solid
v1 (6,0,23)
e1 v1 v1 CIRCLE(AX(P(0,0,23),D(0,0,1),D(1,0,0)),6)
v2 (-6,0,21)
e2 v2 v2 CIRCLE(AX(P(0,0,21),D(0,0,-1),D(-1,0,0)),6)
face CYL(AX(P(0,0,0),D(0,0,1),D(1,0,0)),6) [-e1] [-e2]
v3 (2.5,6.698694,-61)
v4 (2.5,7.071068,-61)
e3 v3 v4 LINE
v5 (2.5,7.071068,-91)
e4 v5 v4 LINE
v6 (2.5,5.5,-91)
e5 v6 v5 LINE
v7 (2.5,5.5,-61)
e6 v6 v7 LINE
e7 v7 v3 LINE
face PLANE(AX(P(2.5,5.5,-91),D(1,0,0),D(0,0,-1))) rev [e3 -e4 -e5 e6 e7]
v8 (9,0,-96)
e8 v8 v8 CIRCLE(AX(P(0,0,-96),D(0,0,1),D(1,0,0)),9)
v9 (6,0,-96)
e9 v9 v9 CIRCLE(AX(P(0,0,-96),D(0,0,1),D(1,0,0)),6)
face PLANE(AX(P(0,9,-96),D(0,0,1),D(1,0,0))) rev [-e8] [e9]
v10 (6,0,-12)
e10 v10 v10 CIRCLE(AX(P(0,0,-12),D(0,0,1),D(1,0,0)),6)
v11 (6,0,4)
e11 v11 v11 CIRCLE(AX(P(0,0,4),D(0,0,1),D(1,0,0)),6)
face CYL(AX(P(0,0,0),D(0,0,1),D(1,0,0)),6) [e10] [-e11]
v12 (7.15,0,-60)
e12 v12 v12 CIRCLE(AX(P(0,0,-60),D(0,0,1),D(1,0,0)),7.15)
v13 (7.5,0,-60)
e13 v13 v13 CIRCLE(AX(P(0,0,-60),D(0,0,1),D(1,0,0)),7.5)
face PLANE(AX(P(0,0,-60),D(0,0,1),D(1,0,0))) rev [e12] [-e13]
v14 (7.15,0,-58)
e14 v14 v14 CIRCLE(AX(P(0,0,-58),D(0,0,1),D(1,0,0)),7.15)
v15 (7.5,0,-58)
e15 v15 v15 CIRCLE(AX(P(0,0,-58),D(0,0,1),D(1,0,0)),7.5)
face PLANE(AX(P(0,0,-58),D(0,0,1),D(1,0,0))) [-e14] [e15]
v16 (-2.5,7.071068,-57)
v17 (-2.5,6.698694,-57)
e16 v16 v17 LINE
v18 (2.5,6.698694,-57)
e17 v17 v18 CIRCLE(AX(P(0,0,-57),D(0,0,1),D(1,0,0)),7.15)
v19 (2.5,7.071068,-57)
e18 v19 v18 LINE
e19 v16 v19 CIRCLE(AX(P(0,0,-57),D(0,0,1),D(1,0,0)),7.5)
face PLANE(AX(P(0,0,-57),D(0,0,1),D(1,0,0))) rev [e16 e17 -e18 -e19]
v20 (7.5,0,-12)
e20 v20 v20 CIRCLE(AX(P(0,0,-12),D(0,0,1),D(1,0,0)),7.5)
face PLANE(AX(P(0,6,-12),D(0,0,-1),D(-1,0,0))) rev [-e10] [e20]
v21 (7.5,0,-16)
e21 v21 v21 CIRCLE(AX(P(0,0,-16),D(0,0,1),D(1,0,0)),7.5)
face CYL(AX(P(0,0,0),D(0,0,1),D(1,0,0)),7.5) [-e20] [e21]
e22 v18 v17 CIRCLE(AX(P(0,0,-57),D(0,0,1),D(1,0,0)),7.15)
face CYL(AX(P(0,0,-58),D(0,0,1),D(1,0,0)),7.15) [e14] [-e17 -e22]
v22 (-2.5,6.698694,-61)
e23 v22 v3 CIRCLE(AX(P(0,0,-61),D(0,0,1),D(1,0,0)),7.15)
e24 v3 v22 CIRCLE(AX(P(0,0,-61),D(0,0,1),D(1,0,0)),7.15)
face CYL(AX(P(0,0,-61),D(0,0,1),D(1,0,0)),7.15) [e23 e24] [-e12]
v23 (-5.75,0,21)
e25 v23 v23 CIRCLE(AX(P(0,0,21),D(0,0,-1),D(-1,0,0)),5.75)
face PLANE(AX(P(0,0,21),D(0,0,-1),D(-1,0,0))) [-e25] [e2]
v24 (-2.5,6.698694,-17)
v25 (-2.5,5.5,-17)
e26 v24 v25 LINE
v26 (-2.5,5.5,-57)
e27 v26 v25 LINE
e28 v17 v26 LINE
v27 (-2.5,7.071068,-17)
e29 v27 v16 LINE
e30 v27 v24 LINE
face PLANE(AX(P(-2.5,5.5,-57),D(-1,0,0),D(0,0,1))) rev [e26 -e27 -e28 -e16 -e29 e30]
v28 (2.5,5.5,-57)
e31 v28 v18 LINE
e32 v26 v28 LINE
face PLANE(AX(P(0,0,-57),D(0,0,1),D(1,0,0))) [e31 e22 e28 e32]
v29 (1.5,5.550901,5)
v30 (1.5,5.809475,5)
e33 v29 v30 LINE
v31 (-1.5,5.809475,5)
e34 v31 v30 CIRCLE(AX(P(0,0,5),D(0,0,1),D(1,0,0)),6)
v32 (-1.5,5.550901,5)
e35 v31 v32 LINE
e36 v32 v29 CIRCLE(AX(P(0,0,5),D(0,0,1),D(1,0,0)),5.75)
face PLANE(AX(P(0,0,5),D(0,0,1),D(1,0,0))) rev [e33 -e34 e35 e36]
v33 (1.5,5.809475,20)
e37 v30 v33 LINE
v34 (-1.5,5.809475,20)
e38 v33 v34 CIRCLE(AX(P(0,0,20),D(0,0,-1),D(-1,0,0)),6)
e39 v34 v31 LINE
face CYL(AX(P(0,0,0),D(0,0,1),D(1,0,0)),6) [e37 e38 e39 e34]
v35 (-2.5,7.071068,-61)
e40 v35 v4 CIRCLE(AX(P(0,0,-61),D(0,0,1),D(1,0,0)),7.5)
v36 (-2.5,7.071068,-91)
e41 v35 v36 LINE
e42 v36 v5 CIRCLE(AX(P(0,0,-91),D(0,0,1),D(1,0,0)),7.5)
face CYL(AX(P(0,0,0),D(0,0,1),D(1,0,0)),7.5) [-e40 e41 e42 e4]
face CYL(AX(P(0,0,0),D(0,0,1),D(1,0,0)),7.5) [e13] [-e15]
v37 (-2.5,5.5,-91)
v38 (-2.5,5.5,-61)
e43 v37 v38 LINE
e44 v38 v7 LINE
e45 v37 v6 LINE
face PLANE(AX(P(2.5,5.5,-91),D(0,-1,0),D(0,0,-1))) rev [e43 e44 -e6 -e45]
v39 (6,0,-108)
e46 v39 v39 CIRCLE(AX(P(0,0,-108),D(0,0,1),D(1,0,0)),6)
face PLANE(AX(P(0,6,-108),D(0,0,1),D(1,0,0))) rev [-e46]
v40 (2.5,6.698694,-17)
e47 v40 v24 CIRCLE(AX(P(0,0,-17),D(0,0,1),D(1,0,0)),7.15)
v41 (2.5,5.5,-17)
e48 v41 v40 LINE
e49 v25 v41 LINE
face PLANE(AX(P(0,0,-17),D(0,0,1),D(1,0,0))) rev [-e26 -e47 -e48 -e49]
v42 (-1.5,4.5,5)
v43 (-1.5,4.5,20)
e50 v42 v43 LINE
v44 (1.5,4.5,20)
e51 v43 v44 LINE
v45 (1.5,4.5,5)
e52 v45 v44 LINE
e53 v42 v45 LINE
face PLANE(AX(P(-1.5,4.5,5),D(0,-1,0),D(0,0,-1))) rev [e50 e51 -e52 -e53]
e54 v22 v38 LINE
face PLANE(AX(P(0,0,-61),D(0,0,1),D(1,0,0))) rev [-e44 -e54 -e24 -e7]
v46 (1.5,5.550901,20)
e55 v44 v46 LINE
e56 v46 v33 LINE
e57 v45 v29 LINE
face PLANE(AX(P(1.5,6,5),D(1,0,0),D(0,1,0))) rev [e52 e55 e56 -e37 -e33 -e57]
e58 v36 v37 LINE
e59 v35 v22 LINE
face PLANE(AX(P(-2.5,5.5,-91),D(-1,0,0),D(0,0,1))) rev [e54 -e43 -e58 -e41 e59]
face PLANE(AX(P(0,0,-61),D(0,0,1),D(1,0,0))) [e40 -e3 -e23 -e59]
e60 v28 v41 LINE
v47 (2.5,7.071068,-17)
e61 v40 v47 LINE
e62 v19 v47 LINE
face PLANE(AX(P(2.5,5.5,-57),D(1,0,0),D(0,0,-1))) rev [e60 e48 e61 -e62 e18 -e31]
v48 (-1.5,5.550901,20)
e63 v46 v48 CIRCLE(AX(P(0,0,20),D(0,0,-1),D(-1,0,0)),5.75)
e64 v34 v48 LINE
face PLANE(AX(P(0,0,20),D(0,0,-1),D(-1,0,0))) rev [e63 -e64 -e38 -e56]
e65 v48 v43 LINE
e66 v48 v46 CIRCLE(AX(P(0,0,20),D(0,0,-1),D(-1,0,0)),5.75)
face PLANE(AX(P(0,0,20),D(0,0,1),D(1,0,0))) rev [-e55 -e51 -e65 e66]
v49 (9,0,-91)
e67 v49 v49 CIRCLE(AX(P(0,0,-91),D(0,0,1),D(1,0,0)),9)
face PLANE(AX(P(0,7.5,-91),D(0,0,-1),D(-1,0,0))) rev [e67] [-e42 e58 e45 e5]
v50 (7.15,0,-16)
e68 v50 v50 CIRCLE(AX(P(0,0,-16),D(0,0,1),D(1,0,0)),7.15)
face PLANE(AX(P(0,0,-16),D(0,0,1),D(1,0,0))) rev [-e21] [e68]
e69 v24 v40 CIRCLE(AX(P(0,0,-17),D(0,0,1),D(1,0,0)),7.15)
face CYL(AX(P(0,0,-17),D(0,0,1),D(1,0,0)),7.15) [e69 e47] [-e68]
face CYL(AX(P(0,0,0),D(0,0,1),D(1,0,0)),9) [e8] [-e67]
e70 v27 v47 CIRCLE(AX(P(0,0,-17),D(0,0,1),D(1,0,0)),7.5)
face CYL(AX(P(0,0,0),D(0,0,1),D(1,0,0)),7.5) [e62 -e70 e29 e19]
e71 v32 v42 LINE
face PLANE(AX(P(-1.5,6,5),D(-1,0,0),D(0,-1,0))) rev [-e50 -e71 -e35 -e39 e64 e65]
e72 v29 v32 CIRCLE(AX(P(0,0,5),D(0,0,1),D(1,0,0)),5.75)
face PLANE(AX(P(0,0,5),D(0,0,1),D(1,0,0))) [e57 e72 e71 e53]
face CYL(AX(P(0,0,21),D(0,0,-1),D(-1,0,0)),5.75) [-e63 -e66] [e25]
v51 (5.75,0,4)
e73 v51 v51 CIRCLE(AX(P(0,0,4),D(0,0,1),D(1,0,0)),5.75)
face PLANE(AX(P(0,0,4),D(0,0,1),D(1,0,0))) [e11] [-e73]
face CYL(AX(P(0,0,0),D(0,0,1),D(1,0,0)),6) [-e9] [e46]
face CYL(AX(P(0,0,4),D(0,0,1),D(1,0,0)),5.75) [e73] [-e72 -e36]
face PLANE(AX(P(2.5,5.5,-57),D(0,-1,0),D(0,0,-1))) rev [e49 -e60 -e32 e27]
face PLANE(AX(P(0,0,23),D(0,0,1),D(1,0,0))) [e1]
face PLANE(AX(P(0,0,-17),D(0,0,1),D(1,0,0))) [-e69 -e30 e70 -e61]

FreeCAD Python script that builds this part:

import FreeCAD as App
import Part
import Sketcher
from FreeCAD import Vector

doc = App.newDocument("Part")
params = doc.addObject("Spreadsheet::Sheet", "Params")
for row, (alias, value) in enumerate([
    ("sketch1_width", "6 mm"),
    ("sketch1_width2", "3 mm"),
    ("sketch1_height", "108 mm"),
    ("sketch1_height2", "12 mm"),
    ("sketch1_height3", "5 mm"),
    ("revolution_angle", "360 deg"),
    ("sketch2_diameter", "20.3 mm"),
    ("sketch2_diameter2", "14.3 mm"),
    ("pocket1_length", "1 mm"),
    ("sketch3_width", "5 mm"),
    ("sketch3_height", "3 mm"),
    ("pocket2_length", "40 mm"),
    ("sketch4_diameter", "20.3 mm"),
    ("sketch4_diameter2", "14.3 mm"),
    ("pocket3_length", "1 mm"),
    ("sketch5_diameter", "20.3 mm"),
    ("sketch5_diameter2", "14.3 mm"),
    ("pocket4_length", "1 mm"),
    ("sketch6_width", "5 mm"),
    ("sketch6_height", "3 mm"),
    ("pocket5_length", "30 mm"),
    ("sketch7_diameter", "12 mm"),
    ("pad1_length", "20 mm"),
    ("sketch8_width", "3 mm"),
    ("sketch8_height", "1.5 mm"),
    ("pocket6_length", "15 mm"),
    ("sketch9_diameter", "12 mm"),
    ("pad2_length", "3 mm"),
    ("sketch10_diameter", "13 mm"),
    ("sketch10_diameter2", "11.5 mm"),
    ("pocket7_length", "1 mm"),
    ("sketch11_diameter", "13 mm"),
    ("sketch11_diameter2", "11.5 mm"),
    ("pocket8_length", "1 mm"),
], start=1):
    params.set(f"A{row}", alias)
    params.set(f"B{row}", "=" + value)
    params.setAlias(f"B{row}", alias)

body = doc.addObject("PartDesign::Body", "Body")

sketch1 = body.newObject("Sketcher::SketchObject", "Sketch")
sketch1.AttachmentSupport = (doc.getObject("YZ_Plane"), [""])
sketch1.MapMode = "FlatFace"
sketch1.addGeometry(Part.LineSegment(Vector(6, 0, 0), Vector(0, 0, 0)), False)
sketch1.addGeometry(Part.LineSegment(Vector(0, 0, 0), Vector(0, -108, 0)), False)
sketch1.addGeometry(Part.LineSegment(Vector(0, -108, 0), Vector(6, -108, 0)), False)
sketch1.addGeometry(Part.LineSegment(Vector(6, -108, 0), Vector(6, -96, 0)), False)
sketch1.addGeometry(Part.LineSegment(Vector(6, -96, 0), Vector(9, -96, 0)), False)
sketch1.addGeometry(Part.LineSegment(Vector(9, -96, 0), Vector(9, -91, 0)), False)
sketch1.addGeometry(Part.LineSegment(Vector(9, -91, 0), Vector(7.5, -91, 0)), False)
sketch1.addGeometry(Part.LineSegment(Vector(7.5, -91, 0), Vector(7.5, -12, 0)), False)
sketch1.addGeometry(Part.LineSegment(Vector(7.5, -12, 0), Vector(6, -12, 0)), False)
sketch1.addGeometry(Part.LineSegment(Vector(6, -12, 0), Vector(6, 0, 0)), False)
sketch1.addConstraint(Sketcher.Constraint("Coincident", 0, 2, 1, 1))
sketch1.addConstraint(Sketcher.Constraint("Coincident", 1, 2, 2, 1))
sketch1.addConstraint(Sketcher.Constraint("Coincident", 2, 2, 3, 1))
sketch1.addConstraint(Sketcher.Constraint("Coincident", 3, 2, 4, 1))
sketch1.addConstraint(Sketcher.Constraint("Coincident", 4, 2, 5, 1))
sketch1.addConstraint(Sketcher.Constraint("Coincident", 5, 2, 6, 1))
sketch1.addConstraint(Sketcher.Constraint("Coincident", 6, 2, 7, 1))
sketch1.addConstraint(Sketcher.Constraint("Coincident", 7, 2, 8, 1))
sketch1.addConstraint(Sketcher.Constraint("Coincident", 8, 2, 9, 1))
sketch1.addConstraint(Sketcher.Constraint("Coincident", 9, 2, 0, 1))
sketch1.addConstraint(Sketcher.Constraint("Horizontal", 0))
sketch1.addConstraint(Sketcher.Constraint("Vertical", 1))
sketch1.addConstraint(Sketcher.Constraint("Horizontal", 2))
sketch1.addConstraint(Sketcher.Constraint("Vertical", 3))
sketch1.addConstraint(Sketcher.Constraint("Horizontal", 4))
sketch1.addConstraint(Sketcher.Constraint("Vertical", 5))
sketch1.addConstraint(Sketcher.Constraint("Horizontal", 6))
sketch1.addConstraint(Sketcher.Constraint("Vertical", 7))
sketch1.addConstraint(Sketcher.Constraint("Horizontal", 8))
sketch1.addConstraint(Sketcher.Constraint("Vertical", 9))
sketch1.addConstraint(Sketcher.Constraint("Coincident", 0, 2, -1, 1))
sketch1.addConstraint(Sketcher.Constraint("Vertical", 3, 2, 8, 2))
sketch1.addConstraint(Sketcher.Constraint("Equal", 6, 8))
sketch1.addConstraint(Sketcher.Constraint("Equal", 3, 9))
sketch1.addConstraint(Sketcher.Constraint("DistanceX", 0, 2, 0, 1, 6.0))
sketch1.addConstraint(Sketcher.Constraint("DistanceX", 4, 1, 4, 2, 3.0))
sketch1.addConstraint(Sketcher.Constraint("DistanceY", 1, 2, 1, 1, 108.0))
sketch1.addConstraint(Sketcher.Constraint("DistanceY", 3, 1, 3, 2, 12.0))
sketch1.addConstraint(Sketcher.Constraint("DistanceY", 5, 1, 5, 2, 5.0))
sketch1.setExpression("Constraints[24]", "Params.sketch1_width")
sketch1.setExpression("Constraints[25]", "Params.sketch1_width2")
sketch1.setExpression("Constraints[26]", "Params.sketch1_height")
sketch1.setExpression("Constraints[27]", "Params.sketch1_height2")
sketch1.setExpression("Constraints[28]", "Params.sketch1_height3")
revolution = body.newObject("PartDesign::Revolution", "Revolution")
revolution.Profile = sketch1
revolution.ReferenceAxis = (sketch1, ["V_Axis"])
revolution.setExpression("Angle", "Params.revolution_angle")

sketch2 = body.newObject("Sketcher::SketchObject", "Sketch001")
sketch2.AttachmentSupport = (doc.getObject("XY_Plane"), [""])
sketch2.MapMode = "FlatFace"
sketch2.AttachmentOffset = App.Placement(Vector(0, 0, -16), App.Rotation())
sketch2.addGeometry(Part.Circle(Vector(0, 0, 0), Vector(0, 0, 1), 10), False)
sketch2.addGeometry(Part.Circle(Vector(0, 0, 0), Vector(0, 0, 1), 7), False)
sketch2.addConstraint(Sketcher.Constraint("Coincident", 0, 3, -1, 1))
sketch2.addConstraint(Sketcher.Constraint("Coincident", 1, 3, -1, 1))
sketch2.addConstraint(Sketcher.Constraint("Diameter", 0, 20.3))
sketch2.addConstraint(Sketcher.Constraint("Diameter", 1, 14.3))
sketch2.setExpression("Constraints[2]", "Params.sketch2_diameter")
sketch2.setExpression("Constraints[3]", "Params.sketch2_diameter2")
pocket1 = body.newObject("PartDesign::Pocket", "Pocket")
pocket1.Profile = sketch2
pocket1.setExpression("Length", "Params.pocket1_length")

sketch3 = body.newObject("Sketcher::SketchObject", "Sketch002")
sketch3.AttachmentSupport = (doc.getObject("XY_Plane"), [""])
sketch3.MapMode = "FlatFace"
sketch3.AttachmentOffset = App.Placement(Vector(0, 0, -17), App.Rotation())
sketch3.addGeometry(Part.LineSegment(Vector(-2.5, 8.5, 0), Vector(-2.5, 5.5, 0)), False)
sketch3.addGeometry(Part.LineSegment(Vector(-2.5, 5.5, 0), Vector(2.5, 5.5, 0)), False)
sketch3.addGeometry(Part.LineSegment(Vector(2.5, 5.5, 0), Vector(2.5, 8.5, 0)), False)
sketch3.addGeometry(Part.LineSegment(Vector(2.5, 8.5, 0), Vector(-2.5, 8.5, 0)), False)
sketch3.addConstraint(Sketcher.Constraint("Coincident", 0, 2, 1, 1))
sketch3.addConstraint(Sketcher.Constraint("Coincident", 1, 2, 2, 1))
sketch3.addConstraint(Sketcher.Constraint("Coincident", 2, 2, 3, 1))
sketch3.addConstraint(Sketcher.Constraint("Coincident", 3, 2, 0, 1))
sketch3.addConstraint(Sketcher.Constraint("Vertical", 0))
sketch3.addConstraint(Sketcher.Constraint("Horizontal", 1))
sketch3.addConstraint(Sketcher.Constraint("Vertical", 2))
sketch3.addConstraint(Sketcher.Constraint("Horizontal", 3))
sketch3.addConstraint(Sketcher.Constraint("DistanceX", 1, 1, 1, 2, 5.0))
sketch3.addConstraint(Sketcher.Constraint("DistanceY", 0, 2, 0, 1, 3.0))
sketch3.addConstraint(Sketcher.Constraint("DistanceX", 0, 2, -1, 1, 2.5))
sketch3.addConstraint(Sketcher.Constraint("DistanceY", -1, 1, 0, 2, 5.5))
sketch3.setExpression("Constraints[8]", "Params.sketch3_width")
sketch3.setExpression("Constraints[9]", "Params.sketch3_height")
pocket2 = body.newObject("PartDesign::Pocket", "Pocket001")
pocket2.Profile = sketch3
pocket2.setExpression("Length", "Params.pocket2_length")

sketch4 = body.newObject("Sketcher::SketchObject", "Sketch003")
sketch4.AttachmentSupport = (doc.getObject("XY_Plane"), [""])
sketch4.MapMode = "FlatFace"
sketch4.AttachmentOffset = App.Placement(Vector(0, 0, -57), App.Rotation())
sketch4.addGeometry(Part.Circle(Vector(0, 0, 0), Vector(0, 0, 1), 10), False)
sketch4.addGeometry(Part.Circle(Vector(0, 0, 0), Vector(0, 0, 1), 7), False)
sketch4.addConstraint(Sketcher.Constraint("Coincident", 0, 3, -1, 1))
sketch4.addConstraint(Sketcher.Constraint("Coincident", 1, 3, -1, 1))
sketch4.addConstraint(Sketcher.Constraint("Diameter", 0, 20.3))
sketch4.addConstraint(Sketcher.Constraint("Diameter", 1, 14.3))
sketch4.setExpression("Constraints[2]", "Params.sketch4_diameter")
sketch4.setExpression("Constraints[3]", "Params.sketch4_diameter2")
pocket3 = body.newObject("PartDesign::Pocket", "Pocket002")
pocket3.Profile = sketch4
pocket3.setExpression("Length", "Params.pocket3_length")

sketch5 = body.newObject("Sketcher::SketchObject", "Sketch004")
sketch5.AttachmentSupport = (doc.getObject("XY_Plane"), [""])
sketch5.MapMode = "FlatFace"
sketch5.AttachmentOffset = App.Placement(Vector(0, 0, -60), App.Rotation())
sketch5.addGeometry(Part.Circle(Vector(0, 0, 0), Vector(0, 0, 1), 10), False)
sketch5.addGeometry(Part.Circle(Vector(0, 0, 0), Vector(0, 0, 1), 7), False)
sketch5.addConstraint(Sketcher.Constraint("Coincident", 0, 3, -1, 1))
sketch5.addConstraint(Sketcher.Constraint("Coincident", 1, 3, -1, 1))
sketch5.addConstraint(Sketcher.Constraint("Diameter", 0, 20.3))
sketch5.addConstraint(Sketcher.Constraint("Diameter", 1, 14.3))
sketch5.setExpression("Constraints[2]", "Params.sketch5_diameter")
sketch5.setExpression("Constraints[3]", "Params.sketch5_diameter2")
pocket4 = body.newObject("PartDesign::Pocket", "Pocket003")
pocket4.Profile = sketch5
pocket4.setExpression("Length", "Params.pocket4_length")

sketch6 = body.newObject("Sketcher::SketchObject", "Sketch005")
sketch6.AttachmentSupport = (doc.getObject("XY_Plane"), [""])
sketch6.MapMode = "FlatFace"
sketch6.AttachmentOffset = App.Placement(Vector(0, 0, -61), App.Rotation())
sketch6.addGeometry(Part.LineSegment(Vector(-2.5, 8.5, 0), Vector(-2.5, 5.5, 0)), False)
sketch6.addGeometry(Part.LineSegment(Vector(-2.5, 5.5, 0), Vector(2.5, 5.5, 0)), False)
sketch6.addGeometry(Part.LineSegment(Vector(2.5, 5.5, 0), Vector(2.5, 8.5, 0)), False)
sketch6.addGeometry(Part.LineSegment(Vector(2.5, 8.5, 0), Vector(-2.5, 8.5, 0)), False)
sketch6.addConstraint(Sketcher.Constraint("Coincident", 0, 2, 1, 1))
sketch6.addConstraint(Sketcher.Constraint("Coincident", 1, 2, 2, 1))
sketch6.addConstraint(Sketcher.Constraint("Coincident", 2, 2, 3, 1))
sketch6.addConstraint(Sketcher.Constraint("Coincident", 3, 2, 0, 1))
sketch6.addConstraint(Sketcher.Constraint("Vertical", 0))
sketch6.addConstraint(Sketcher.Constraint("Horizontal", 1))
sketch6.addConstraint(Sketcher.Constraint("Vertical", 2))
sketch6.addConstraint(Sketcher.Constraint("Horizontal", 3))
sketch6.addConstraint(Sketcher.Constraint("DistanceX", 1, 1, 1, 2, 5.0))
sketch6.addConstraint(Sketcher.Constraint("DistanceY", 0, 2, 0, 1, 3.0))
sketch6.addConstraint(Sketcher.Constraint("DistanceX", 0, 2, -1, 1, 2.5))
sketch6.addConstraint(Sketcher.Constraint("DistanceY", -1, 1, 0, 2, 5.5))
sketch6.setExpression("Constraints[8]", "Params.sketch6_width")
sketch6.setExpression("Constraints[9]", "Params.sketch6_height")
pocket5 = body.newObject("PartDesign::Pocket", "Pocket004")
pocket5.Profile = sketch6
pocket5.setExpression("Length", "Params.pocket5_length")

sketch7 = body.newObject("Sketcher::SketchObject", "Sketch006")
sketch7.AttachmentSupport = (doc.getObject("XY_Plane"), [""])
sketch7.MapMode = "FlatFace"
sketch7.addGeometry(Part.Circle(Vector(0, 0, 0), Vector(0, 0, 1), 6), False)
sketch7.addConstraint(Sketcher.Constraint("Coincident", 0, 3, -1, 1))
sketch7.addConstraint(Sketcher.Constraint("Diameter", 0, 12.0))
sketch7.setExpression("Constraints[1]", "Params.sketch7_diameter")
pad1 = body.newObject("PartDesign::Pad", "Pad")
pad1.Profile = sketch7
pad1.setExpression("Length", "Params.pad1_length")

sketch8 = body.newObject("Sketcher::SketchObject", "Sketch007")
sketch8.AttachmentSupport = (doc.getObject("XY_Plane"), [""])
sketch8.MapMode = "FlatFace"
sketch8.AttachmentOffset = App.Placement(Vector(0, 0, 20), App.Rotation())
sketch8.addGeometry(Part.LineSegment(Vector(-1.5, 6, 0), Vector(-1.5, 4.5, 0)), False)
sketch8.addGeometry(Part.LineSegment(Vector(-1.5, 4.5, 0), Vector(1.5, 4.5, 0)), False)
sketch8.addGeometry(Part.LineSegment(Vector(1.5, 4.5, 0), Vector(1.5, 6, 0)), False)
sketch8.addGeometry(Part.LineSegment(Vector(1.5, 6, 0), Vector(-1.5, 6, 0)), False)
sketch8.addConstraint(Sketcher.Constraint("Coincident", 0, 2, 1, 1))
sketch8.addConstraint(Sketcher.Constraint("Coincident", 1, 2, 2, 1))
sketch8.addConstraint(Sketcher.Constraint("Coincident", 2, 2, 3, 1))
sketch8.addConstraint(Sketcher.Constraint("Coincident", 3, 2, 0, 1))
sketch8.addConstraint(Sketcher.Constraint("Vertical", 0))
sketch8.addConstraint(Sketcher.Constraint("Horizontal", 1))
sketch8.addConstraint(Sketcher.Constraint("Vertical", 2))
sketch8.addConstraint(Sketcher.Constraint("Horizontal", 3))
sketch8.addConstraint(Sketcher.Constraint("DistanceX", 1, 1, 1, 2, 3.0))
sketch8.addConstraint(Sketcher.Constraint("DistanceY", 0, 2, 0, 1, 1.5))
sketch8.addConstraint(Sketcher.Constraint("DistanceY", -1, 1, 2, 2, 6.0))
sketch8.addConstraint(Sketcher.Constraint("DistanceX", 0, 2, -1, 1, 1.5))
sketch8.setExpression("Constraints[8]", "Params.sketch8_width")
sketch8.setExpression("Constraints[9]", "Params.sketch8_height")
pocket6 = body.newObject("PartDesign::Pocket", "Pocket005")
pocket6.Profile = sketch8
pocket6.setExpression("Length", "Params.pocket6_length")

sketch9 = body.newObject("Sketcher::SketchObject", "Sketch008")
sketch9.AttachmentSupport = (doc.getObject("XY_Plane"), [""])
sketch9.MapMode = "FlatFace"
sketch9.AttachmentOffset = App.Placement(Vector(0, 0, 20), App.Rotation())
sketch9.addGeometry(Part.Circle(Vector(0, 0, 0), Vector(0, 0, 1), 6), False)
sketch9.addConstraint(Sketcher.Constraint("Coincident", 0, 3, -1, 1))
sketch9.addConstraint(Sketcher.Constraint("Diameter", 0, 12.0))
sketch9.setExpression("Constraints[1]", "Params.sketch9_diameter")
pad2 = body.newObject("PartDesign::Pad", "Pad001")
pad2.Profile = sketch9
pad2.setExpression("Length", "Params.pad2_length")

sketch10 = body.newObject("Sketcher::SketchObject", "Sketch009")
sketch10.AttachmentSupport = (doc.getObject("XY_Plane"), [""])
sketch10.MapMode = "FlatFace"
sketch10.AttachmentOffset = App.Placement(Vector(0, 0, 20), App.Rotation())
sketch10.addGeometry(Part.Circle(Vector(0, 0, 0), Vector(0, 0, 1), 6), False)
sketch10.addGeometry(Part.Circle(Vector(0, 0, 0), Vector(0, 0, 1), 6), False)
sketch10.addConstraint(Sketcher.Constraint("Coincident", 0, 3, -1, 1))
sketch10.addConstraint(Sketcher.Constraint("Coincident", 1, 3, -1, 1))
sketch10.addConstraint(Sketcher.Constraint("Diameter", 0, 13.0))
sketch10.addConstraint(Sketcher.Constraint("Diameter", 1, 11.5))
sketch10.setExpression("Constraints[2]", "Params.sketch10_diameter")
sketch10.setExpression("Constraints[3]", "Params.sketch10_diameter2")
pocket7 = body.newObject("PartDesign::Pocket", "Pocket006")
pocket7.Profile = sketch10
pocket7.setExpression("Length", "Params.pocket7_length")
pocket7.Reversed = True

sketch11 = body.newObject("Sketcher::SketchObject", "Sketch010")
sketch11.AttachmentSupport = (doc.getObject("XY_Plane"), [""])
sketch11.MapMode = "FlatFace"
sketch11.AttachmentOffset = App.Placement(Vector(0, 0, 4), App.Rotation())
sketch11.addGeometry(Part.Circle(Vector(0, 0, 0), Vector(0, 0, 1), 6), False)
sketch11.addGeometry(Part.Circle(Vector(0, 0, 0), Vector(0, 0, 1), 6), False)
sketch11.addConstraint(Sketcher.Constraint("Coincident", 0, 3, -1, 1))
sketch11.addConstraint(Sketcher.Constraint("Coincident", 1, 3, -1, 1))
sketch11.addConstraint(Sketcher.Constraint("Diameter", 0, 13.0))
sketch11.addConstraint(Sketcher.Constraint("Diameter", 1, 11.5))
sketch11.setExpression("Constraints[2]", "Params.sketch11_diameter")
sketch11.setExpression("Constraints[3]", "Params.sketch11_diameter2")
pocket8 = body.newObject("PartDesign::Pocket", "Pocket007")
pocket8.Profile = sketch11
pocket8.setExpression("Length", "Params.pocket8_length")
pocket8.Reversed = True

doc.recompute()
